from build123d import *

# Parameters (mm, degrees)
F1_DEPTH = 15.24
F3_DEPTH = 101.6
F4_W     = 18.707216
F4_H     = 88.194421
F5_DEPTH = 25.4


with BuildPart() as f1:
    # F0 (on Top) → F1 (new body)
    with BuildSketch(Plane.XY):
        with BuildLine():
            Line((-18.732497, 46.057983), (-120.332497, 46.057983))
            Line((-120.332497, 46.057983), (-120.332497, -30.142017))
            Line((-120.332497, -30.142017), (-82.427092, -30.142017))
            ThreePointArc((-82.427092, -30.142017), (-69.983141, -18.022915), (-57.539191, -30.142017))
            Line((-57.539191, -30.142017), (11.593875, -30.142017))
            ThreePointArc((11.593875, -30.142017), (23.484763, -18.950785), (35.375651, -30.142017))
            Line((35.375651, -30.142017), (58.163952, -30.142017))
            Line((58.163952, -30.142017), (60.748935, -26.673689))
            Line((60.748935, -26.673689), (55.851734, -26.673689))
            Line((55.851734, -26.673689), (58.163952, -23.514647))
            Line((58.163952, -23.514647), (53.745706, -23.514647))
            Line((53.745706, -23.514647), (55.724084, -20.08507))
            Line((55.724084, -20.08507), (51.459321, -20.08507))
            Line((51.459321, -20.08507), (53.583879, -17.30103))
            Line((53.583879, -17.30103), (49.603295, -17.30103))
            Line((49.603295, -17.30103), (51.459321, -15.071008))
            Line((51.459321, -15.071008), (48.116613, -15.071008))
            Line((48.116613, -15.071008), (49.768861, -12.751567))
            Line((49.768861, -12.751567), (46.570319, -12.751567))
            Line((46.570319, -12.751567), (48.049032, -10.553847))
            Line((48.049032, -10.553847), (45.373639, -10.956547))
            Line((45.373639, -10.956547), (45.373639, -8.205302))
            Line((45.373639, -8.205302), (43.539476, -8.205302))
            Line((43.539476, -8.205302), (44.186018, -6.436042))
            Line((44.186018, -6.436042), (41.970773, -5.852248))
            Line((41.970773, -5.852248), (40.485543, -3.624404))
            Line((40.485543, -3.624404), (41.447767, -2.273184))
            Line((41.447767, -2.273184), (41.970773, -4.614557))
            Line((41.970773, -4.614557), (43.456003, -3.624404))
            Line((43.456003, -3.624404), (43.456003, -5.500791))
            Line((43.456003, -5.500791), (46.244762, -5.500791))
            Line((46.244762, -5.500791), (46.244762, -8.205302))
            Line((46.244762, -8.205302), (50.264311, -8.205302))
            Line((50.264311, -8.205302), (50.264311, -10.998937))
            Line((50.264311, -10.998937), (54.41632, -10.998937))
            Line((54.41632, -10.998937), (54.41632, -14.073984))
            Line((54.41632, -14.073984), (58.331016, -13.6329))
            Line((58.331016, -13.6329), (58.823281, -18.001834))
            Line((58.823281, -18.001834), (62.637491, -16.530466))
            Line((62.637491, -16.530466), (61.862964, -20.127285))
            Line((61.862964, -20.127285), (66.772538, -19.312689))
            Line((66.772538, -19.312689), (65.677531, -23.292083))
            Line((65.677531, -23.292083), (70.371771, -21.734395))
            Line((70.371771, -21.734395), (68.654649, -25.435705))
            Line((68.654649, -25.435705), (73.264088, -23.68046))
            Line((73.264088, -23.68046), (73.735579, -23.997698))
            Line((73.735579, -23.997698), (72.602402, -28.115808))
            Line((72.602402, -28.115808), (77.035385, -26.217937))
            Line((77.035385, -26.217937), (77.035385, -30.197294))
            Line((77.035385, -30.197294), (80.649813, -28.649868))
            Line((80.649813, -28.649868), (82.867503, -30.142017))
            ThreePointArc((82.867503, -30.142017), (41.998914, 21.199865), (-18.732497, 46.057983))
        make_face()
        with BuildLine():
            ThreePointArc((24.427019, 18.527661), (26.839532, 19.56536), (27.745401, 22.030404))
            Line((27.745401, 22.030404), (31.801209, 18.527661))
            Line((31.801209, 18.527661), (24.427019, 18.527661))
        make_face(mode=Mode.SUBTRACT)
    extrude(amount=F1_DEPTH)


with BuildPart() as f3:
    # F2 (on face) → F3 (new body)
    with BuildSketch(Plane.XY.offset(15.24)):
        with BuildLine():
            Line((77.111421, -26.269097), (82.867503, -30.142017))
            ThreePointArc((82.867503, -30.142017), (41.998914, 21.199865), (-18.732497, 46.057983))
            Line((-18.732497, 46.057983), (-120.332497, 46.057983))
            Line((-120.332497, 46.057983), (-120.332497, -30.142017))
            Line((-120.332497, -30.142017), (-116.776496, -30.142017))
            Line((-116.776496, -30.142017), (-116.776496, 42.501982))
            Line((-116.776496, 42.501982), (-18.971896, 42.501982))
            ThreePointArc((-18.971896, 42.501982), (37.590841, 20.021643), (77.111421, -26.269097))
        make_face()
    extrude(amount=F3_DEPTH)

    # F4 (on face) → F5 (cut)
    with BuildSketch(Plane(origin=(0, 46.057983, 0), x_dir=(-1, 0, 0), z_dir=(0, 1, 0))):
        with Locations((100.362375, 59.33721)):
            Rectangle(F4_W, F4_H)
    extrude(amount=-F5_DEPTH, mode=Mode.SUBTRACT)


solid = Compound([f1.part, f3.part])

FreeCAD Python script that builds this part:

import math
import FreeCAD as App
import Part
import Sketcher
Q = App.Units.Quantity

doc = App.newDocument("Part")
body = doc.addObject("PartDesign::Body", "Body")

sketch1 = doc.addObject("Sketcher::SketchObject", "Sketch")
body.addObject(sketch1)
sketch1.AttachmentSupport = (doc.XY_Plane, [""])
sketch1.MapMode = "FlatFace"
sketch1.addGeometry([
    Part.LineSegment(App.Vector(-18.732497, 46.057983, 0), App.Vector(-120.332497, 46.057983, 0)),
    Part.LineSegment(App.Vector(-120.332497, 46.057983, 0), App.Vector(-120.332497, -30.142017, 0)),
    Part.LineSegment(App.Vector(-120.332497, -30.142017, 0), App.Vector(-82.427092, -30.142017, 0)),
    Part.ArcOfCircle(Part.Circle(App.Vector(-69.983142, -30.471219, 0), App.Vector(0, 0, 1), 12.448304), math.radians(1.515395), math.radians(178.484605)),
    Part.LineSegment(App.Vector(-57.539191, -30.142017, 0), App.Vector(11.593875, -30.142017, 0)),
    Part.ArcOfCircle(Part.Circle(App.Vector(23.484763, -30.863544, 0), App.Vector(0, 0, 1), 11.912759), math.radians(3.47239), math.radians(176.52761)),
    Part.LineSegment(App.Vector(35.375651, -30.142017, 0), App.Vector(58.163952, -30.142017, 0)),
    Part.LineSegment(App.Vector(58.163952, -30.142017, 0), App.Vector(60.748935, -26.673689, 0)),
    Part.LineSegment(App.Vector(60.748935, -26.673689, 0), App.Vector(55.851734, -26.673689, 0)),
    Part.LineSegment(App.Vector(55.851734, -26.673689, 0), App.Vector(58.163952, -23.514647, 0)),
    Part.LineSegment(App.Vector(58.163952, -23.514647, 0), App.Vector(53.745706, -23.514647, 0)),
    Part.LineSegment(App.Vector(53.745706, -23.514647, 0), App.Vector(55.724084, -20.08507, 0)),
    Part.LineSegment(App.Vector(55.724084, -20.08507, 0), App.Vector(51.459321, -20.08507, 0)),
    Part.LineSegment(App.Vector(51.459321, -20.08507, 0), App.Vector(53.583879, -17.30103, 0)),
    Part.LineSegment(App.Vector(53.583879, -17.30103, 0), App.Vector(49.603295, -17.30103, 0)),
    Part.LineSegment(App.Vector(49.603295, -17.30103, 0), App.Vector(51.459321, -15.071008, 0)),
    Part.LineSegment(App.Vector(51.459321, -15.071008, 0), App.Vector(48.116613, -15.071008, 0)),
    Part.LineSegment(App.Vector(48.116613, -15.071008, 0), App.Vector(49.768861, -12.751567, 0)),
    Part.LineSegment(App.Vector(49.768861, -12.751567, 0), App.Vector(46.570319, -12.751567, 0)),
    Part.LineSegment(App.Vector(46.570319, -12.751567, 0), App.Vector(48.049032, -10.553847, 0)),
    Part.LineSegment(App.Vector(48.049032, -10.553847, 0), App.Vector(45.373639, -10.956547, 0)),
    Part.LineSegment(App.Vector(45.373639, -10.956547, 0), App.Vector(45.373639, -8.205302, 0)),
    Part.LineSegment(App.Vector(45.373639, -8.205302, 0), App.Vector(43.539476, -8.205302, 0)),
    Part.LineSegment(App.Vector(43.539476, -8.205302, 0), App.Vector(44.186018, -6.436042, 0)),
    Part.LineSegment(App.Vector(44.186018, -6.436042, 0), App.Vector(41.970773, -5.852248, 0)),
    Part.LineSegment(App.Vector(41.970773, -5.852248, 0), App.Vector(40.485543, -3.624404, 0)),
    Part.LineSegment(App.Vector(40.485543, -3.624404, 0), App.Vector(41.447767, -2.273184, 0)),
    Part.LineSegment(App.Vector(41.447767, -2.273184, 0), App.Vector(41.970773, -4.614557, 0)),
    Part.LineSegment(App.Vector(41.970773, -4.614557, 0), App.Vector(43.456003, -3.624404, 0)),
    Part.LineSegment(App.Vector(43.456003, -3.624404, 0), App.Vector(43.456003, -5.500791, 0)),
    Part.LineSegment(App.Vector(43.456003, -5.500791, 0), App.Vector(46.244762, -5.500791, 0)),
    Part.LineSegment(App.Vector(46.244762, -5.500791, 0), App.Vector(46.244762, -8.205302, 0)),
    Part.LineSegment(App.Vector(46.244762, -8.205302, 0), App.Vector(50.264311, -8.205302, 0)),
    Part.LineSegment(App.Vector(50.264311, -8.205302, 0), App.Vector(50.264311, -10.998937, 0)),
    Part.LineSegment(App.Vector(50.264311, -10.998937, 0), App.Vector(54.41632, -10.998937, 0)),
    Part.LineSegment(App.Vector(54.41632, -10.998937, 0), App.Vector(54.41632, -14.073984, 0)),
    Part.LineSegment(App.Vector(54.41632, -14.073984, 0), App.Vector(58.331016, -13.6329, 0)),
    Part.LineSegment(App.Vector(58.331016, -13.6329, 0), App.Vector(58.823281, -18.001834, 0)),
    Part.LineSegment(App.Vector(58.823281, -18.001834, 0), App.Vector(62.637491, -16.530466, 0)),
    Part.LineSegment(App.Vector(62.637491, -16.530466, 0), App.Vector(61.862964, -20.127285, 0)),
    Part.LineSegment(App.Vector(61.862964, -20.127285, 0), App.Vector(66.772538, -19.312689, 0)),
    Part.LineSegment(App.Vector(66.772538, -19.312689, 0), App.Vector(65.677531, -23.292083, 0)),
    Part.LineSegment(App.Vector(65.677531, -23.292083, 0), App.Vector(70.371771, -21.734395, 0)),
    Part.LineSegment(App.Vector(70.371771, -21.734395, 0), App.Vector(68.654649, -25.435705, 0)),
    Part.LineSegment(App.Vector(68.654649, -25.435705, 0), App.Vector(73.264088, -23.68046, 0)),
    Part.LineSegment(App.Vector(73.264088, -23.68046, 0), App.Vector(73.735579, -23.997698, 0)),
    Part.LineSegment(App.Vector(73.735579, -23.997698, 0), App.Vector(72.602402, -28.115808, 0)),
    Part.LineSegment(App.Vector(72.602402, -28.115808, 0), App.Vector(77.035385, -26.217937, 0)),
    Part.LineSegment(App.Vector(77.035385, -26.217937, 0), App.Vector(77.035385, -30.197294, 0)),
    Part.LineSegment(App.Vector(77.035385, -30.197294, 0), App.Vector(80.649813, -28.649868, 0)),
    Part.LineSegment(App.Vector(80.649813, -28.649868, 0), App.Vector(82.867503, -30.142017, 0)),
    Part.ArcOfCircle(Part.Circle(App.Vector(-36.048549, -82.86342, 0), App.Vector(0, 0, 1), 130.079106), math.radians(23.910093), math.radians(82.350112)),
    Part.LineSegment(App.Vector(31.801209, 18.527661, 0), App.Vector(24.427019, 18.527661, 0)),
    Part.ArcOfCircle(Part.Circle(App.Vector(24.427021, 21.850893, 0), App.Vector(0, 0, 1), 3.323232), math.radians(-90.000033), math.radians(3.096454)),
    Part.LineSegment(App.Vector(27.745401, 22.030404, 0), App.Vector(31.801209, 18.527661, 0)),
], False)
sketch1.addConstraint([
    Sketcher.Constraint("Coincident", 0, 2, 1, 1),
    Sketcher.Constraint("Coincident", 1, 2, 2, 1),
    Sketcher.Constraint("Coincident", 2, 2, 3, 2),
    Sketcher.Constraint("Coincident", 3, 1, 4, 1),
    Sketcher.Constraint("Coincident", 4, 2, 5, 2),
    Sketcher.Constraint("Coincident", 5, 1, 6, 1),
    Sketcher.Constraint("Coincident", 6, 2, 7, 1),
    Sketcher.Constraint("Coincident", 7, 2, 8, 1),
    Sketcher.Constraint("Coincident", 8, 2, 9, 1),
    Sketcher.Constraint("Coincident", 9, 2, 10, 1),
    Sketcher.Constraint("Coincident", 10, 2, 11, 1),
    Sketcher.Constraint("Coincident", 11, 2, 12, 1),
    Sketcher.Constraint("Coincident", 12, 2, 13, 1),
    Sketcher.Constraint("Coincident", 13, 2, 14, 1),
    Sketcher.Constraint("Coincident", 14, 2, 15, 1),
    Sketcher.Constraint("Coincident", 15, 2, 16, 1),
    Sketcher.Constraint("Coincident", 16, 2, 17, 1),
    Sketcher.Constraint("Coincident", 17, 2, 18, 1),
    Sketcher.Constraint("Coincident", 18, 2, 19, 1),
    Sketcher.Constraint("Coincident", 19, 2, 20, 1),
    Sketcher.Constraint("Coincident", 20, 2, 21, 1),
    Sketcher.Constraint("Coincident", 21, 2, 22, 1),
    Sketcher.Constraint("Coincident", 22, 2, 23, 1),
    Sketcher.Constraint("Coincident", 23, 2, 24, 1),
    Sketcher.Constraint("Coincident", 24, 2, 25, 1),
    Sketcher.Constraint("Coincident", 25, 2, 26, 1),
    Sketcher.Constraint("Coincident", 26, 2, 27, 1),
    Sketcher.Constraint("Coincident", 27, 2, 28, 1),
    Sketcher.Constraint("Coincident", 28, 2, 29, 1),
    Sketcher.Constraint("Coincident", 29, 2, 30, 1),
    Sketcher.Constraint("Coincident", 30, 2, 31, 1),
    Sketcher.Constraint("Coincident", 31, 2, 32, 1),
    Sketcher.Constraint("Coincident", 32, 2, 33, 1),
    Sketcher.Constraint("Coincident", 33, 2, 34, 1),
    Sketcher.Constraint("Coincident", 34, 2, 35, 1),
    Sketcher.Constraint("Coincident", 35, 2, 36, 1),
    Sketcher.Constraint("Coincident", 36, 2, 37, 1),
    Sketcher.Constraint("Coincident", 37, 2, 38, 1),
    Sketcher.Constraint("Coincident", 38, 2, 39, 1),
    Sketcher.Constraint("Coincident", 39, 2, 40, 1),
    Sketcher.Constraint("Coincident", 40, 2, 41, 1),
    Sketcher.Constraint("Coincident", 41, 2, 42, 1),
    Sketcher.Constraint("Coincident", 42, 2, 43, 1),
    Sketcher.Constraint("Coincident", 43, 2, 44, 1),
    Sketcher.Constraint("Coincident", 44, 2, 45, 1),
    Sketcher.Constraint("Coincident", 45, 2, 46, 1),
    Sketcher.Constraint("Coincident", 46, 2, 47, 1),
    Sketcher.Constraint("Coincident", 47, 2, 48, 1),
    Sketcher.Constraint("Coincident", 48, 2, 49, 1),
    Sketcher.Constraint("Coincident", 49, 2, 50, 1),
    Sketcher.Constraint("Coincident", 50, 2, 51, 1),
    Sketcher.Constraint("Coincident", 51, 2, 0, 1),
    Sketcher.Constraint("Tangent", 52, 2, 53, 1),
    Sketcher.Constraint("Coincident", 53, 2, 54, 1),
    Sketcher.Constraint("Coincident", 54, 2, 52, 1),
    Sketcher.Constraint("Horizontal", 0),
    Sketcher.Constraint("Vertical", 1),
    Sketcher.Constraint("Horizontal", 2),
    Sketcher.Constraint("Horizontal", 4),
    Sketcher.Constraint("Horizontal", 6),
    Sketcher.Constraint("Horizontal", 8),
    Sketcher.Constraint("Horizontal", 10),
    Sketcher.Constraint("Horizontal", 12),
    Sketcher.Constraint("Horizontal", 14),
    Sketcher.Constraint("Horizontal", 16),
    Sketcher.Constraint("Horizontal", 18),
    Sketcher.Constraint("Vertical", 21),
    Sketcher.Constraint("Horizontal", 22),
    Sketcher.Constraint("Vertical", 29),
    Sketcher.Constraint("Horizontal", 30),
    Sketcher.Constraint("Vertical", 31),
    Sketcher.Constraint("Horizontal", 32),
    Sketcher.Constraint("Vertical", 33),
    Sketcher.Constraint("Horizontal", 34),
    Sketcher.Constraint("Vertical", 35),
    Sketcher.Constraint("Vertical", 48),
    Sketcher.Constraint("Horizontal", 52),
    Sketcher.Constraint("Perpendicular", 25, 28),
    Sketcher.Constraint("Perpendicular", 36, 37),
    Sketcher.Constraint("Perpendicular", 19, 45),
    Sketcher.Constraint("Parallel", 41, 46),
    Sketcher.Constraint("Parallel", 47, 49),
    Sketcher.Constraint("Parallel", 45, 50),
    Sketcher.Constraint("Horizontal", 2, 2, 3, 1),
    Sketcher.Constraint("Horizontal", 4, 2, 5, 1),
    Sketcher.Constraint("Horizontal", 25, 2, 28, 2),
    Sketcher.Constraint("Horizontal", 22, 2, 31, 2),
    Sketcher.Constraint("Horizontal", 6, 2, 50, 2),
    Sketcher.Constraint("Vertical", 6, 2, 9, 2),
    Sketcher.Constraint("Vertical", 12, 2, 15, 2),
    Sketcher.Constraint("Vertical", 24, 2, 27, 2),
    Sketcher.Constraint("DistanceX", 0, 2, 0, 1, Q("4 in")),
    Sketcher.Constraint("DistanceY", 1, 2, 1, 1, Q("3 in")),
    Sketcher.Constraint("Radius", 5, 11.912759),
    Sketcher.Constraint("Radius", 53, 3.323232),
    Sketcher.Constraint("DistanceX", 6, 1, 6, 2, 22.788301),
    Sketcher.Constraint("DistanceX", 8, 2, 8, 1, 4.897201),
    Sketcher.Constraint("DistanceY", 5, 3, -1, 1, Q("1.2151001 in")),
    Sketcher.Constraint("DistanceX", 0, 2, -1, 1, Q("4.7374999 in")),
    Sketcher.Constraint("DistanceX", -1, 1, 50, 2, Q("3.2625001 in")),
    Sketcher.Constraint("Radius", 3, 12.448304),
    Sketcher.Constraint("Radius", 51, 130.079106),
    Sketcher.Constraint("Distance", 41, 4.127301),
    Sketcher.Constraint("DistanceX", 16, 2, 16, 1, 3.342708),
    Sketcher.Constraint("DistanceX", 30, 1, 30, 2, 2.788759),
    Sketcher.Constraint("DistanceX", 32, 1, 32, 2, 4.019549),
    Sketcher.Constraint("DistanceX", 34, 1, 34, 2, 4.152009),
    Sketcher.Constraint("DistanceX", 52, 2, 52, 1, 7.37419),
    Sketcher.Constraint("DistanceY", 31, 2, 31, 1, 2.704511),
    Sketcher.Constraint("DistanceY", 36, 2, -1, 1, 13.6329),
    Sketcher.Constraint("DistanceY", 45, 2, -1, 1, 23.997698),
    Sketcher.Constraint("DistanceX", -1, 1, 46, 2, 72.602402),
    Sketcher.Constraint("DistanceX", -1, 1, 53, 2, 27.745401),
    Sketcher.Constraint("DistanceY", 51, 3, 3, 3, 52.392201),
    Sketcher.Constraint("DistanceX", 51, 3, 5, 1, 71.4242),
    Sketcher.Constraint("DistanceY", 20, 2, 19, 2, 0.4027),
    Sketcher.Constraint("DistanceX", 23, 2, 18, 2, 2.384301),
    Sketcher.Constraint("DistanceY", 20, 2, 24, 2, 5.104299),
    Sketcher.Constraint("DistanceX", 15, 2, 34, 2, 2.956999),
    Sketcher.Constraint("DistanceX", 13, 2, 37, 2, 5.239402),
    Sketcher.Constraint("DistanceY", 7, 2, 40, 2, 7.361),
    Sketcher.Constraint("DistanceY", 41, 2, 39, 2, 3.164798),
    Sketcher.Constraint("DistanceX", 53, 2, 28, 2, 15.710602),
    Sketcher.Constraint("Distance", 7, 4.325672),
    Sketcher.Constraint("Distance", 9, 3.914831),
    Sketcher.Constraint("Distance", 11, 3.95929),
    Sketcher.Constraint("Distance", 13, 3.502089),
    Sketcher.Constraint("Distance", 15, 2.90135),
    Sketcher.Constraint("Distance", 17, 2.847759),
    Sketcher.Constraint("Distance", 19, 2.64888),
    Sketcher.Constraint("Distance", 20, 2.70553),
    Sketcher.Constraint("Distance", 24, 2.290879),
    Sketcher.Constraint("Distance", 37, 4.396579),
    Sketcher.Constraint("Distance", 38, 4.088169),
    Sketcher.Constraint("Distance", 43, 4.080221),
    Sketcher.Constraint("Distance", 45, 0.568281),
    Sketcher.Constraint("Distance", 50, 2.672949),
    Sketcher.Constraint("Distance", 54, 5.358991),
    Sketcher.Constraint("DistanceX", 2, 1, 2, 2, 37.905405),
    Sketcher.Constraint("DistanceX", 4, 1, 4, 2, 69.133066),
    Sketcher.Constraint("DistanceX", 10, 2, 10, 1, 4.418246),
    Sketcher.Constraint("DistanceX", 12, 2, 12, 1, 4.264763),
    Sketcher.Constraint("DistanceX", 14, 2, 14, 1, 3.980584),
    Sketcher.Constraint("DistanceX", 18, 2, 18, 1, 3.198542),
    Sketcher.Constraint("DistanceX", 22, 2, 22, 1, 1.834163),
    Sketcher.Constraint("DistanceY", 21, 1, 21, 2, 2.751245),
    Sketcher.Constraint("DistanceY", 29, 2, 29, 1, 1.876387),
    Sketcher.Constraint("DistanceY", 33, 2, 33, 1, 2.793635),
    Sketcher.Constraint("DistanceY", 35, 2, 35, 1, 3.075047),
    Sketcher.Constraint("DistanceY", 48, 2, 48, 1, 3.979357),
    Sketcher.Constraint("DistanceY", 7, 2, -1, 1, 26.673689),
    Sketcher.Constraint("DistanceX", -1, 1, 13, 2, 53.583879),
    Sketcher.Constraint("DistanceX", -1, 1, 17, 2, 49.768861),
    Sketcher.Constraint("DistanceX", -1, 1, 19, 2, 48.049032),
    Sketcher.Constraint("DistanceY", 23, 2, -1, 1, 6.436042),
    Sketcher.Constraint("DistanceX", -1, 1, 38, 2, 62.637491),
    Sketcher.Constraint("DistanceX", -1, 1, 41, 2, 65.677531),
    Sketcher.Constraint("DistanceX", -1, 1, 42, 2, 70.371771),
    Sketcher.Constraint("DistanceX", -1, 1, 43, 2, 68.654649),
    Sketcher.Constraint("DistanceX", -1, 1, 44, 2, 73.264088),
    Sketcher.Constraint("DistanceY", 46, 2, -1, 1, 28.115808),
    Sketcher.Constraint("DistanceY", -1, 1, 52, 2, 18.527661),
    Sketcher.Constraint("DistanceX", 25, 2, 24, 2, 1.48523),
    Sketcher.Constraint("DistanceY", 25, 2, 26, 2, 1.35122),
    Sketcher.Constraint("DistanceX", 26, 2, 23, 2, 2.738251),
    Sketcher.Constraint("DistanceX", 9, 2, 39, 2, 3.699012),
    Sketcher.Constraint("DistanceY", 41, 2, 42, 2, 1.557688),
    Sketcher.Constraint("DistanceY", 47, 2, 45, 2, 2.220239),
])
pad1 = doc.addObject("PartDesign::Pad", "Pad")
body.addObject(pad1)
pad1.Profile = sketch1
pad1.Length = Q("0.6 in")
body2 = doc.addObject("PartDesign::Body", "Body001")

sketch2 = doc.addObject("Sketcher::SketchObject", "Sketch001")
body2.addObject(sketch2)
sketch2.AttachmentSupport = (doc.getObject("XY_Plane001"), [""])
sketch2.MapMode = "FlatFace"
sketch2.AttachmentOffset = App.Placement(App.Vector(0, 0, 0.6 * 25.4), App.Rotation())
sketch2.addGeometry([
    Part.LineSegment(App.Vector(77.111421, -26.269097, 0), App.Vector(82.867503, -30.142017, 0)),
    Part.ArcOfCircle(Part.Circle(App.Vector(-36.048549, -82.86342, 0), App.Vector(0, 0, 1), 130.079106), math.radians(23.910093), math.radians(82.350112)),
    Part.LineSegment(App.Vector(-18.732497, 46.057983, 0), App.Vector(-120.332497, 46.057983, 0)),
    Part.LineSegment(App.Vector(-120.332497, 46.057983, 0), App.Vector(-120.332497, -30.142017, 0)),
    Part.LineSegment(App.Vector(-120.332497, -30.142017, 0), App.Vector(-116.776496, -30.142017, 0)),
    Part.LineSegment(App.Vector(-116.776496, -30.142017, 0), App.Vector(-116.776496, 42.501982, 0)),
    Part.LineSegment(App.Vector(-116.776496, 42.501982, 0), App.Vector(-18.971896, 42.501982, 0)),
    Part.ArcOfCircle(Part.Circle(App.Vector(-36.048553, -82.863426, 0), App.Vector(0, 0, 1), 126.523111), math.radians(26.57086), math.radians(82.243191)),
], False)
sketch2.addConstraint([
    Sketcher.Constraint("Coincident", 0, 2, 1, 1),
    Sketcher.Constraint("Coincident", 1, 2, 2, 1),
    Sketcher.Constraint("Coincident", 2, 2, 3, 1),
    Sketcher.Constraint("Coincident", 3, 2, 4, 1),
    Sketcher.Constraint("Coincident", 4, 2, 5, 1),
    Sketcher.Constraint("Coincident", 5, 2, 6, 1),
    Sketcher.Constraint("Coincident", 6, 2, 7, 2),
    Sketcher.Constraint("Coincident", 7, 1, 0, 1),
    Sketcher.Constraint("Horizontal", 2),
    Sketcher.Constraint("Vertical", 3),
    Sketcher.Constraint("Horizontal", 4),
    Sketcher.Constraint("Vertical", 5),
    Sketcher.Constraint("Horizontal", 6),
    Sketcher.Constraint("Coincident", 7, 3, 1, 3),
    Sketcher.Constraint("Horizontal", 0, 2, 3, 2),
    Sketcher.Constraint("DistanceX", 2, 2, 2, 1, Q("4 in")),
    Sketcher.Constraint("DistanceY", 3, 2, 3, 1, Q("3 in")),
    Sketcher.Constraint("DistanceX", 1, 2, 0, 2, Q("4 in")),
    Sketcher.Constraint("DistanceX", 4, 1, 4, 2, Q("0.14 in")),
    Sketcher.Constraint("DistanceY", 5, 1, 5, 2, Q("2.86 in")),
    Sketcher.Constraint("Radius", 7, 126.523111),
    Sketcher.Constraint("DistanceX", 6, 1, 6, 2, 97.8046),
    Sketcher.Constraint("DistanceX", -1, 1, 0, 2, Q("3.2625001 in")),
    Sketcher.Constraint("DistanceY", 1, 3, -1, 1, 82.86342),
    Sketcher.Constraint("DistanceX", -1, 1, 7, 1, 77.111421),
])
pad2 = doc.addObject("PartDesign::Pad", "Pad001")
body2.addObject(pad2)
pad2.Profile = sketch2
pad2.Length = Q("4 in")

sketch3 = doc.addObject("Sketcher::SketchObject", "Sketch002")
body2.addObject(sketch3)
sketch3.AttachmentSupport = (doc.getObject("XZ_Plane001"), [""])
sketch3.MapMode = "FlatFace"
sketch3.AttachmentOffset = App.Placement(App.Vector(0, 0, -46.057983), App.Rotation())
sketch3.addGeometry([
    Part.LineSegment(App.Vector(-91.008767, 103.434421, 0), App.Vector(-91.008767, 15.239999, 0)),
    Part.LineSegment(App.Vector(-91.008767, 15.239999, 0), App.Vector(-109.715983, 15.239999, 0)),
    Part.LineSegment(App.Vector(-109.715983, 15.239999, 0), App.Vector(-109.715983, 103.434421, 0)),
    Part.LineSegment(App.Vector(-109.715983, 103.434421, 0), App.Vector(-91.008767, 103.434421, 0)),
], False)
sketch3.addConstraint([
    Sketcher.Constraint("Coincident", 0, 2, 1, 1),
    Sketcher.Constraint("Coincident", 1, 2, 2, 1),
    Sketcher.Constraint("Coincident", 2, 2, 3, 1),
    Sketcher.Constraint("Coincident", 3, 2, 0, 1),
    Sketcher.Constraint("Vertical", 0),
    Sketcher.Constraint("Horizontal", 1),
    Sketcher.Constraint("Vertical", 2),
    Sketcher.Constraint("Horizontal", 3),
    Sketcher.Constraint("DistanceY", -1, 1, 0, 2, Q("0.6 in")),
    Sketcher.Constraint("DistanceY", 0, 2, 0, 1, 88.194421),
    Sketcher.Constraint("DistanceX", 1, 2, 1, 1, 18.707216),
    Sketcher.Constraint("DistanceX", 0, 2, -1, 1, 91.008767),
])
pocket1 = doc.addObject("PartDesign::Pocket", "Pocket")
body2.addObject(pocket1)
pocket1.Profile = sketch3
pocket1.Length = Q("1 in")
pocket1.Reversed = True

doc.recompute()
